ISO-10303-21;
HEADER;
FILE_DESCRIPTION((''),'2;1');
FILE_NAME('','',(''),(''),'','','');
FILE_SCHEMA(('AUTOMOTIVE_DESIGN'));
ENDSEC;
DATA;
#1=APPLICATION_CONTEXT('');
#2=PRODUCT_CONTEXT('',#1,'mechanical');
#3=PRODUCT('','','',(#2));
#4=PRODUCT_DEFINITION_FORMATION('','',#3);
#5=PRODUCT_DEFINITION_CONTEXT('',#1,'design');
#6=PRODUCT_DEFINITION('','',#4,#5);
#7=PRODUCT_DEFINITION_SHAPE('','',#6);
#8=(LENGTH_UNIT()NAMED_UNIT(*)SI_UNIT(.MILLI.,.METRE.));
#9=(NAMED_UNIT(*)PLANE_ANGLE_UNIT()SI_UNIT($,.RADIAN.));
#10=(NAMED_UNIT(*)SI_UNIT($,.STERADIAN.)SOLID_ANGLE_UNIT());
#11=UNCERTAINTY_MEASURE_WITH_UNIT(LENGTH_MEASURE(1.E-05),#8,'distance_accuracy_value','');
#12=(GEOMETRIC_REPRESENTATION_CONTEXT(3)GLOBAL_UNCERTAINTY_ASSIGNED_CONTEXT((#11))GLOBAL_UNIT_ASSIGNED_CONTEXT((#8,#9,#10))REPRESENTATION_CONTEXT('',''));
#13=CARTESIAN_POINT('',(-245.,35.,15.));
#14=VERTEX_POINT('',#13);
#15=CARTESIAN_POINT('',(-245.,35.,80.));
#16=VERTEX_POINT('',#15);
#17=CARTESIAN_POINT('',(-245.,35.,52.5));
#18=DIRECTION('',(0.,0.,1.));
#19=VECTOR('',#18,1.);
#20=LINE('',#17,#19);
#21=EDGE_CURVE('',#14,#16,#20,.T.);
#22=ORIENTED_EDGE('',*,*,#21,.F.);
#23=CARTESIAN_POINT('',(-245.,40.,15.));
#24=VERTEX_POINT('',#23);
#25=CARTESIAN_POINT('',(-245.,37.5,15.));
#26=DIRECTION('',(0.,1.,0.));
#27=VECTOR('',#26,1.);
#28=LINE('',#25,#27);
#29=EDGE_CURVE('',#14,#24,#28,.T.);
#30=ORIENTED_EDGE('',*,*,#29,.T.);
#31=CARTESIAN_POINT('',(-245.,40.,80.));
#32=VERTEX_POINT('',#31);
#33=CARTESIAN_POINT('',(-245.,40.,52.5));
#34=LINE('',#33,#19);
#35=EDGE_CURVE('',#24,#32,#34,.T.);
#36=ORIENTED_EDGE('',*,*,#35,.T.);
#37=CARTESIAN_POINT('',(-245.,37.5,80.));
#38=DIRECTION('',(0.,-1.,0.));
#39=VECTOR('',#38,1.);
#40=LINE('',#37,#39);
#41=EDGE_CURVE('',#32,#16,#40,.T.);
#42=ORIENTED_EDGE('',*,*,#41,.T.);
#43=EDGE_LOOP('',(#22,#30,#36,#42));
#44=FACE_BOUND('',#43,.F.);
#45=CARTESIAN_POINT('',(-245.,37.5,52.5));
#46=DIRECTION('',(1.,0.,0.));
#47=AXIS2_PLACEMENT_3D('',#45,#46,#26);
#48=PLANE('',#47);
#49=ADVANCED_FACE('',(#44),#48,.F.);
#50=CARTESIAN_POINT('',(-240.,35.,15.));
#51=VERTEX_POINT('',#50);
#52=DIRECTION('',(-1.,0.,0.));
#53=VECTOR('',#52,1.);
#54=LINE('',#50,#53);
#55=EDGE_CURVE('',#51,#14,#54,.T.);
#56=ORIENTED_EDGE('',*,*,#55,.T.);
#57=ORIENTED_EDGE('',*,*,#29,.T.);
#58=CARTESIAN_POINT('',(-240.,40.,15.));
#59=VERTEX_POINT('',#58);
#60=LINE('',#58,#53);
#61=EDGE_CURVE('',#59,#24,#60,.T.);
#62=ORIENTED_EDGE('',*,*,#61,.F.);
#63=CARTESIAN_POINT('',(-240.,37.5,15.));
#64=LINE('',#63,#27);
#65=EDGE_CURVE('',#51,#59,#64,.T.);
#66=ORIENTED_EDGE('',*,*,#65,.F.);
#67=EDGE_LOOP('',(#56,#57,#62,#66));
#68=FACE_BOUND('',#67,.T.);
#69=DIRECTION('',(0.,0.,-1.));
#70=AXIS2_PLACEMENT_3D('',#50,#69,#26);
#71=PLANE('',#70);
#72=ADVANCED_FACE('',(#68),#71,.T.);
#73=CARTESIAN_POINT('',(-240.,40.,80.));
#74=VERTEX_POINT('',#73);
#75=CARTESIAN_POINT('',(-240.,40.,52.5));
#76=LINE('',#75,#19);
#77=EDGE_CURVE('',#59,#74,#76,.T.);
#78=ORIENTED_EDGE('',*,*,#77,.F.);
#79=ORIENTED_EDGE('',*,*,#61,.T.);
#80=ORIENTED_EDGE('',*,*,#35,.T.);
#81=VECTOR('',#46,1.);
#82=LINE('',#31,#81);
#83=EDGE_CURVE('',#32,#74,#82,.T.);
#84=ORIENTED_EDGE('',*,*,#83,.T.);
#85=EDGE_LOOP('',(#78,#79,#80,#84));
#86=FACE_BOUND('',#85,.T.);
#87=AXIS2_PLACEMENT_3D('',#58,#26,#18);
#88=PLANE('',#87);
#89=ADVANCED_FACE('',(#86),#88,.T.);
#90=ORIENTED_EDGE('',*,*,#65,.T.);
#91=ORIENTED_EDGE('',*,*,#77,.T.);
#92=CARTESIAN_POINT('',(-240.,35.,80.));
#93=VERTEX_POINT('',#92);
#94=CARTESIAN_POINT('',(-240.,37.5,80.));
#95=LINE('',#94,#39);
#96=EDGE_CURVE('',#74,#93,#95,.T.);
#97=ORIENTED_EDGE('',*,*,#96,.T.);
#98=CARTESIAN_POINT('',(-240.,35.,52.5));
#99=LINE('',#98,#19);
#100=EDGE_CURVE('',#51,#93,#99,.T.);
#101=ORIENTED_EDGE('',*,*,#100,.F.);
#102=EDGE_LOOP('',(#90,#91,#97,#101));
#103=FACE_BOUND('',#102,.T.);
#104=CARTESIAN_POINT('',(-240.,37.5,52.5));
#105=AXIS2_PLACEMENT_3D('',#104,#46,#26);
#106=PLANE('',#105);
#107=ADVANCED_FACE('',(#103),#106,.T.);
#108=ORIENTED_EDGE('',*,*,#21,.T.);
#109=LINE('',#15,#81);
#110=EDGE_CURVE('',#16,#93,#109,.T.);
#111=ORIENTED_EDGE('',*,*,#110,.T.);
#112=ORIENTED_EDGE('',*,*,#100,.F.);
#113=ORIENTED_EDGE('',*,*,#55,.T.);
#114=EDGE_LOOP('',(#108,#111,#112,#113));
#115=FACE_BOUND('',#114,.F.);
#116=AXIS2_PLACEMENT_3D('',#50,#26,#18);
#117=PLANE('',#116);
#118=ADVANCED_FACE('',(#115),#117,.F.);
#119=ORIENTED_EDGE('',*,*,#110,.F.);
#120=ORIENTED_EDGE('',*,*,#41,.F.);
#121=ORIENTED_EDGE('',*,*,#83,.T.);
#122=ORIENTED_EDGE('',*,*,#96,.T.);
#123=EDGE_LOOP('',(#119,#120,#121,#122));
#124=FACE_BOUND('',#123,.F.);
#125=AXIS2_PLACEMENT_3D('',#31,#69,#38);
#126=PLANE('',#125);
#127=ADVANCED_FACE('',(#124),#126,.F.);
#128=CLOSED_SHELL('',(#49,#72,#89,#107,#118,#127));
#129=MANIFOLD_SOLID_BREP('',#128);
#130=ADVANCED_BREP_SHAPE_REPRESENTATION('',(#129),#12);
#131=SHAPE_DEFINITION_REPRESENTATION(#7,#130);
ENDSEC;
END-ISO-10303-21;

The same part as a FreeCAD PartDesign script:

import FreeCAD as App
import Part
import Sketcher
from FreeCAD import Vector
Q = App.Units.Quantity


def add_polygon(sketch, points):
    """Adds a closed chain of lines whose ends are joined by coincident constraints."""
    first, n = sketch.GeometryCount, len(points)
    for a, b in zip(points, points[1:] + points[:1]):
        sketch.addGeometry(Part.LineSegment(App.Vector(*a, 0), App.Vector(*b, 0)), False)
    for i in range(n):
        sketch.addConstraint(Sketcher.Constraint("Coincident", first + i, 2, first + (i + 1) % n, 1))

doc = App.newDocument("Part")
body = doc.addObject("PartDesign::Body", "Body")

sketch1 = body.newObject("Sketcher::SketchObject", "Sketch")
sketch1.AttachmentSupport = (doc.getObject("YZ_Plane"), [""])
sketch1.MapMode = "FlatFace"
sketch1.AttachmentOffset = App.Placement(Vector(0, 0, -245), App.Rotation())
add_polygon(sketch1, [(40, 90), (40, 80), (35, 80), (35, 90)])
sketch1.addConstraint([
    Sketcher.Constraint("Vertical", 0),
    Sketcher.Constraint("Horizontal", 1),
    Sketcher.Constraint("Vertical", 2),
    Sketcher.Constraint("Horizontal", 3),
    Sketcher.Constraint("DistanceX", 1, 2, 1, 1, Q("5 mm")),
    Sketcher.Constraint("DistanceY", 0, 2, 0, 1, Q("10 mm")),
    Sketcher.Constraint("DistanceX", -1, 1, 0, 2, Q("40 mm")),
    Sketcher.Constraint("DistanceY", -1, 1, 0, 2, Q("80 mm")),
])
pad1 = body.newObject("PartDesign::Pad", "Pad")
pad1.Profile = sketch1
pad1.Length = 5
body2 = doc.addObject("PartDesign::Body", "Body001")

sketch2 = body2.newObject("Sketcher::SketchObject", "Sketch001")
sketch2.AttachmentSupport = (doc.getObject("YZ_Plane001"), [""])
sketch2.MapMode = "FlatFace"
sketch2.AttachmentOffset = App.Placement(Vector(0, 0, -140), App.Rotation())
add_polygon(sketch2, [(35, 90), (35, 15), (40, 15), (40, 90)])
sketch2.addConstraint([
    Sketcher.Constraint("Vertical", 0),
    Sketcher.Constraint("Horizontal", 1),
    Sketcher.Constraint("Vertical", 2),
    Sketcher.Constraint("Horizontal", 3),
    Sketcher.Constraint("DistanceX", 1, 1, 1, 2, Q("5 mm")),
    Sketcher.Constraint("DistanceY", 0, 2, 0, 1, Q("75 mm")),
    Sketcher.Constraint("DistanceX", -1, 1, 0, 2, Q("35 mm")),
    Sketcher.Constraint("DistanceY", -1, 1, 0, 2, Q("15 mm")),
])
pad2 = body2.newObject("PartDesign::Pad", "Pad001")
pad2.Profile = sketch2
pad2.Length = 5
pad2.Reversed = True
body3 = doc.addObject("PartDesign::Body", "Body002")
doc.recompute()

body2.Placement = App.Placement(Vector(-100, 0, 0), App.Rotation(Vector(0, 0, 1), 0))
boolean = body3.newObject("PartDesign::Boolean", "Boolean")
boolean.Type = "Fuse"
boolean.addObjects([body2])
doc.recompute()

boolean2 = body3.newObject("PartDesign::Boolean", "Boolean001")
boolean2.Type = "Cut"
boolean2.addObjects([body])

doc.recompute()
